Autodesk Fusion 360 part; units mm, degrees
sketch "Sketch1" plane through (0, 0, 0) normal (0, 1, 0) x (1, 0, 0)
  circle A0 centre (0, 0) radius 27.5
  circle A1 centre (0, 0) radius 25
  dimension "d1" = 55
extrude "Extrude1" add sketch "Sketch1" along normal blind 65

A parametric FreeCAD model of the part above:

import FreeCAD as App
import Part
import Sketcher
from FreeCAD import Vector
Q = App.Units.Quantity

doc = App.newDocument("Part")
body = doc.addObject("PartDesign::Body", "Body")

sketch1 = doc.addObject("Sketcher::SketchObject", "Sketch")
body.addObject(sketch1)
sketch1.AttachmentSupport = (doc.XZ_Plane, [""])
sketch1.MapMode = "FlatFace"
sketch1.addGeometry([
    Part.Circle(Vector(0, 0, 0), Vector(0, 0, 1), 28),
    Part.Circle(Vector(0, 0, 0), Vector(0, 0, 1), 25),
], False)
sketch1.addConstraint([
    Sketcher.Constraint("Coincident", 0, 3, -1, 1),
    Sketcher.Constraint("Coincident", 1, 3, -1, 1),
    Sketcher.Constraint("Diameter", 0, Q("55 mm")),
    Sketcher.Constraint("Diameter", 1, Q("50 mm")),
])
pad1 = doc.addObject("PartDesign::Pad", "Pad")
body.addObject(pad1)
pad1.Profile = sketch1
pad1.Length = 65
pad1.Reversed = True

doc.recompute()
